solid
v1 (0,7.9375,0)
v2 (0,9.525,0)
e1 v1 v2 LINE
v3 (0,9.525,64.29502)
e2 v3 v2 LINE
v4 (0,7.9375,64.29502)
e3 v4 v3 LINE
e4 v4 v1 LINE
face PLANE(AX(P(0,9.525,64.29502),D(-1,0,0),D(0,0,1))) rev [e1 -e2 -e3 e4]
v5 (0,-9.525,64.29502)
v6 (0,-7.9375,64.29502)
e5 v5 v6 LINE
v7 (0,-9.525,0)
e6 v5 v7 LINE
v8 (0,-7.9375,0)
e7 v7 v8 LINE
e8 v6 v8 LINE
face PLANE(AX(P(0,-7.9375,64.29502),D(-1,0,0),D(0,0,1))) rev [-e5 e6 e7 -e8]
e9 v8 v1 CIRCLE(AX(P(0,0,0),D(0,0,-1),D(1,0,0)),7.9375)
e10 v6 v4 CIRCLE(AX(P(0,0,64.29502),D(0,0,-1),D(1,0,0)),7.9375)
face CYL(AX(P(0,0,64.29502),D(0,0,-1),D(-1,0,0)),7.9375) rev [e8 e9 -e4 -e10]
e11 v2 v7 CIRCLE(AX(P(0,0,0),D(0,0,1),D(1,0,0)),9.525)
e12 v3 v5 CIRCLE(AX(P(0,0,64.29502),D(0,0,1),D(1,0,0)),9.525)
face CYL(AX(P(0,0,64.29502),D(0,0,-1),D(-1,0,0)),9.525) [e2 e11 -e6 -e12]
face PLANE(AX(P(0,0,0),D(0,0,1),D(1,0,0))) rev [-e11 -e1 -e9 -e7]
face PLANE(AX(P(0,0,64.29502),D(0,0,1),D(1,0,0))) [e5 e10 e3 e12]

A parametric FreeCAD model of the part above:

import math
import FreeCAD as App
import Part
import Sketcher
from FreeCAD import Vector
Q = App.Units.Quantity

doc = App.newDocument("Part")
body = doc.addObject("PartDesign::Body", "Body")

# Sketch on XY plane
sketch1 = body.newObject("Sketcher::SketchObject", "Sketch")
sketch1.AttachmentSupport = (doc.getObject("XY_Plane"), [""])
sketch1.MapMode = "FlatFace"
sketch1.addGeometry(Part.LineSegment(Vector(0, 7.9, 0), Vector(0, 9.5, 0)), False)
sketch1.addGeometry(Part.ArcOfCircle(Part.Circle(Vector(0, 0, 0), Vector(0, 0, 1), 9.5), math.radians(90), math.radians(270)), False)
sketch1.addGeometry(Part.LineSegment(Vector(0, -9.5, 0), Vector(0, -7.9, 0)), False)
sketch1.addGeometry(Part.ArcOfCircle(Part.Circle(Vector(0, 0, 0), Vector(0, 0, 1), 7.9), math.radians(90), math.radians(270)), False)
sketch1.addConstraint(Sketcher.Constraint("Coincident", 0, 2, 1, 1))
sketch1.addConstraint(Sketcher.Constraint("Coincident", 1, 2, 2, 1))
sketch1.addConstraint(Sketcher.Constraint("Coincident", 2, 2, 3, 2))
sketch1.addConstraint(Sketcher.Constraint("Coincident", 3, 1, 0, 1))
sketch1.addConstraint(Sketcher.Constraint("Vertical", 0))
sketch1.addConstraint(Sketcher.Constraint("Vertical", 2))
sketch1.addConstraint(Sketcher.Constraint("Coincident", 1, 3, -1, 1))
sketch1.addConstraint(Sketcher.Constraint("Coincident", 3, 3, -1, 1))
sketch1.addConstraint(Sketcher.Constraint("PointOnObject", 0, 2, -2))
sketch1.addConstraint(Sketcher.Constraint("PointOnObject", 1, 2, -2))
sketch1.addConstraint(Sketcher.Constraint("Radius", 1, Q("0.375 in")))
sketch1.addConstraint(Sketcher.Constraint("Radius", 3, Q("0.3125 in")))
pad1 = body.newObject("PartDesign::Pad", "Pad")
pad1.Profile = sketch1
pad1.Length = Q("2.5313 in")

doc.recompute()
